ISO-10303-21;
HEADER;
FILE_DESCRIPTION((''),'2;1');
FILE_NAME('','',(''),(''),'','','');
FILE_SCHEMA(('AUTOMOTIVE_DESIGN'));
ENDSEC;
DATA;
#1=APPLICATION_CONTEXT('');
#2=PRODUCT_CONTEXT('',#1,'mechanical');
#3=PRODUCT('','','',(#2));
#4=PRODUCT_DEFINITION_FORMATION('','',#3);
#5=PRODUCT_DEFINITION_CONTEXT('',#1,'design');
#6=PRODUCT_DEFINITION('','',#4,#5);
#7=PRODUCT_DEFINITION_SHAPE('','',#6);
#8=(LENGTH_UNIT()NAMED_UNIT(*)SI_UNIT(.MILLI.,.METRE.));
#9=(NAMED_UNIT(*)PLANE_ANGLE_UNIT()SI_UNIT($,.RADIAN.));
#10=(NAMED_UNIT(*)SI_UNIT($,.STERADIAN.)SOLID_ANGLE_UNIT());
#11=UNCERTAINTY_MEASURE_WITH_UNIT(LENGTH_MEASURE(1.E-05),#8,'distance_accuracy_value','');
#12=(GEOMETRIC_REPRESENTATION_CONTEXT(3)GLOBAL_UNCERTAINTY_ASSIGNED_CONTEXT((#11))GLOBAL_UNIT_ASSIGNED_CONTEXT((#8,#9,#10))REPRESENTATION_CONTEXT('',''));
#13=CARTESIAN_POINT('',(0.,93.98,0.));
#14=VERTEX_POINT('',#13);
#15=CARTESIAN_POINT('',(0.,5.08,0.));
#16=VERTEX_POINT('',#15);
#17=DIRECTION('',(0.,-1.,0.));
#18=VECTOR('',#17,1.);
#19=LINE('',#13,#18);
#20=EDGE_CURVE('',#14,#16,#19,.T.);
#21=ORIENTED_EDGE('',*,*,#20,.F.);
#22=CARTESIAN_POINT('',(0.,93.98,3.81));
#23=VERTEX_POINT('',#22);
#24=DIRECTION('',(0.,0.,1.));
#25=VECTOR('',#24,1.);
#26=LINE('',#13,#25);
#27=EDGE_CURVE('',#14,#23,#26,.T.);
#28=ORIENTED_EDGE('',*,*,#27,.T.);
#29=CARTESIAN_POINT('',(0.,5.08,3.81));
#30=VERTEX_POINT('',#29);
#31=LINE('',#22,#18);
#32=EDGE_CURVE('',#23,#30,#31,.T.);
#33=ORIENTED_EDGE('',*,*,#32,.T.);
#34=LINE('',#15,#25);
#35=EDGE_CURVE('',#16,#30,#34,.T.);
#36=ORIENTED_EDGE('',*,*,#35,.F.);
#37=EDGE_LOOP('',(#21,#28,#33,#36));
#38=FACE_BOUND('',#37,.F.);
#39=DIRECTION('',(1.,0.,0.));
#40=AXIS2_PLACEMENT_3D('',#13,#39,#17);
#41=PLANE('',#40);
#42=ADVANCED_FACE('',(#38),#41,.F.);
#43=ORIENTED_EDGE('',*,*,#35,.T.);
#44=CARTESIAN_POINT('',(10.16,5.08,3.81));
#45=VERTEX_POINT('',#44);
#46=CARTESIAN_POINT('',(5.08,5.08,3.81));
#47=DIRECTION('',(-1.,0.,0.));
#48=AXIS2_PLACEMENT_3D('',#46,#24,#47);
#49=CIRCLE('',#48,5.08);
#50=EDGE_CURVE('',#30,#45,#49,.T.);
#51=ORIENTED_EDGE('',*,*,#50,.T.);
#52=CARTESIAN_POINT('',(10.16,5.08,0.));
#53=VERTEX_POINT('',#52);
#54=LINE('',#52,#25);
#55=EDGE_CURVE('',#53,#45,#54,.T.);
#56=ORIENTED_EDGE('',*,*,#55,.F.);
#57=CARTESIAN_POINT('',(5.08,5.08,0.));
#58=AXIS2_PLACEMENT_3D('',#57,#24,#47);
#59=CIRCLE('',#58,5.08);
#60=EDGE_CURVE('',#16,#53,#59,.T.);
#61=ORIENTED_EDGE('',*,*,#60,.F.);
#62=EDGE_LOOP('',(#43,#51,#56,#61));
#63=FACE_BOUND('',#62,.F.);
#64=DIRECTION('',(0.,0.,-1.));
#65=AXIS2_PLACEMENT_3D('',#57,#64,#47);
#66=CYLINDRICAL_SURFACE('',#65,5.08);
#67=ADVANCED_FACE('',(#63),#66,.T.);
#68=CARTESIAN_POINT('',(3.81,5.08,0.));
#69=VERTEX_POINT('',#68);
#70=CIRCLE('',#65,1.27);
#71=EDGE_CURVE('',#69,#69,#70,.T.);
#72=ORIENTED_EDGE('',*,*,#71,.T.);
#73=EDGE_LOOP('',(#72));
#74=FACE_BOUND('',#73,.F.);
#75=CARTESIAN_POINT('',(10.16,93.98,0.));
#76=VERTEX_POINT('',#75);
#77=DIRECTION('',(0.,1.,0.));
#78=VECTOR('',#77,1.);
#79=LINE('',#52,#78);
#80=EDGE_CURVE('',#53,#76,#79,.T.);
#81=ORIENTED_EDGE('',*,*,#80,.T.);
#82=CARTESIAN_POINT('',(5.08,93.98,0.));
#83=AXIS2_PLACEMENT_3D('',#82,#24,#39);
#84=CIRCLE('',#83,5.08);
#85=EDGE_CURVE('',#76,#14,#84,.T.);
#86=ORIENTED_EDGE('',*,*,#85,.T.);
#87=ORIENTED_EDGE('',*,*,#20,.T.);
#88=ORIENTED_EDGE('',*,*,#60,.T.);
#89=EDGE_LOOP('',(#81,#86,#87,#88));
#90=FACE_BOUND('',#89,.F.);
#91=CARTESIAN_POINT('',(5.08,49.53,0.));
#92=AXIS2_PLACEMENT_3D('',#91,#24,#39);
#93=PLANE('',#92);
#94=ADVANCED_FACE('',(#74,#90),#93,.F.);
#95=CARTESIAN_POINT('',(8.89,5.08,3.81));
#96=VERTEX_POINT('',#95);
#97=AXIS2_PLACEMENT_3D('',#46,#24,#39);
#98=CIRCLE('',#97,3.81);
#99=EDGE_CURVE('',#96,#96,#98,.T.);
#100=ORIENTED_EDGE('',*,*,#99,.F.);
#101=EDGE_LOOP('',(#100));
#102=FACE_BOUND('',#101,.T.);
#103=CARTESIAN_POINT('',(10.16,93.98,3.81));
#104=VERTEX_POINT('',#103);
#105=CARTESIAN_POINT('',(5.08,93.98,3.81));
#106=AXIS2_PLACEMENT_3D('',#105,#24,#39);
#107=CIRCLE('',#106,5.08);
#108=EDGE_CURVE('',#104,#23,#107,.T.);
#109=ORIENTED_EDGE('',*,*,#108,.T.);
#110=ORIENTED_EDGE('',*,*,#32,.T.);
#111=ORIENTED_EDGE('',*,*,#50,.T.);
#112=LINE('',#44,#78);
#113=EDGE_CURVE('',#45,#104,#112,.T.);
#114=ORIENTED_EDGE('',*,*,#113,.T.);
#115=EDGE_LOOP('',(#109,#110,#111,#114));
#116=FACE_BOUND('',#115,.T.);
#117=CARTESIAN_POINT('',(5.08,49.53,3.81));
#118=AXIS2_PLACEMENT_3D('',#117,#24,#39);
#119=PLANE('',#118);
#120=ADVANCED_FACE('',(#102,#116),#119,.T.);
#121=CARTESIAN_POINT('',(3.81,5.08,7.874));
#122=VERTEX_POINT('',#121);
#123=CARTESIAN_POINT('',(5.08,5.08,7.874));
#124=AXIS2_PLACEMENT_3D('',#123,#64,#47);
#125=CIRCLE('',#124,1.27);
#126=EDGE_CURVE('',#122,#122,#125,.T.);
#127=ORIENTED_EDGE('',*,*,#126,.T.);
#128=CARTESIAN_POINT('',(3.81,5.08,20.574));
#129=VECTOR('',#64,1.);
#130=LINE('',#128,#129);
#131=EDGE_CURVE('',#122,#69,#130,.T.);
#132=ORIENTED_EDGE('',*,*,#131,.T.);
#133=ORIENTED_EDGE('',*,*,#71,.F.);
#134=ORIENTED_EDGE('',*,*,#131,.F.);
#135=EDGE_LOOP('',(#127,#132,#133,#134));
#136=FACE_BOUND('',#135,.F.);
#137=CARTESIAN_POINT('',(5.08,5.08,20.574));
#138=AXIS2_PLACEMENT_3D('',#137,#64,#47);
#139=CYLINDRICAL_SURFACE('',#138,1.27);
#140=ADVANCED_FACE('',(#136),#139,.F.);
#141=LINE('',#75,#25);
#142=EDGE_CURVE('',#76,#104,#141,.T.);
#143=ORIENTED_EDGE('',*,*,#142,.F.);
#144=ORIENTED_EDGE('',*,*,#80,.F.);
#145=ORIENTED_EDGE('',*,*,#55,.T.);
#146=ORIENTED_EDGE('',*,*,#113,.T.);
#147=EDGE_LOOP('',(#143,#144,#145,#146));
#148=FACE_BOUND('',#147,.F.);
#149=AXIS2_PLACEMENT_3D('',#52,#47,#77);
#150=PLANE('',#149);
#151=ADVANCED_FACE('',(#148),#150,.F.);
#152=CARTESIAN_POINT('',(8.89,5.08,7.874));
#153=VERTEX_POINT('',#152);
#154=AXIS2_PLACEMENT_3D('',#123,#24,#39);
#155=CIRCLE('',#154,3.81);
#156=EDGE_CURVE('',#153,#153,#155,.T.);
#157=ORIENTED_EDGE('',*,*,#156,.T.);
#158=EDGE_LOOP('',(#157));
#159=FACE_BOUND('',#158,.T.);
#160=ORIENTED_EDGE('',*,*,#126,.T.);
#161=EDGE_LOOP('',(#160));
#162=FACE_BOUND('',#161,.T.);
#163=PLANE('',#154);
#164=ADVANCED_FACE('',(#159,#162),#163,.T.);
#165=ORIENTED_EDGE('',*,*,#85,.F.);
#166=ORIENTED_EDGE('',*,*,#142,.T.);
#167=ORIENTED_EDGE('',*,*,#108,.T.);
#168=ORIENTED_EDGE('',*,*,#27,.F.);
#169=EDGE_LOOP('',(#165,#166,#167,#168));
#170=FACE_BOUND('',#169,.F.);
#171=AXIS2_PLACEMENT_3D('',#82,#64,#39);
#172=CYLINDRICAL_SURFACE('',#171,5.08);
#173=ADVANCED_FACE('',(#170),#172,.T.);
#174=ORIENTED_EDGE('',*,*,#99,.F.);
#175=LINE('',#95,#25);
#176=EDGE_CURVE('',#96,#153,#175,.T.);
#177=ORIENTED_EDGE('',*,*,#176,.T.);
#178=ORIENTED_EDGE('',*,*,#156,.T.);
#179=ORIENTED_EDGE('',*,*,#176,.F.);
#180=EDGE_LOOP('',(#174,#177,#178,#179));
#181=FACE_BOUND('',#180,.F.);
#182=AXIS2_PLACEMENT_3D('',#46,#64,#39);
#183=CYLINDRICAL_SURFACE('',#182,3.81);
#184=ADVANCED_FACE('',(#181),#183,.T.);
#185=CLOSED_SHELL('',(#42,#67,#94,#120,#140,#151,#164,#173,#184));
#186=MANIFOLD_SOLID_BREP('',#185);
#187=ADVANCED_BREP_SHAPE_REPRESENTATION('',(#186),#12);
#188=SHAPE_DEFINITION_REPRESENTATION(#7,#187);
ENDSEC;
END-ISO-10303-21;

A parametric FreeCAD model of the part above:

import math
import FreeCAD as App
import Part
import Sketcher
from FreeCAD import Vector
Q = App.Units.Quantity

doc = App.newDocument("Part")
body = doc.addObject("PartDesign::Body", "Body")

sketch1 = body.newObject("Sketcher::SketchObject", "Sketch")
sketch1.AttachmentSupport = (doc.getObject("XY_Plane"), [""])
sketch1.MapMode = "FlatFace"
sketch1.addGeometry([
    Part.LineSegment(Vector(0, 94, 0), Vector(0, 5, 0)),
    Part.ArcOfCircle(Part.Circle(Vector(5, 5, 0), Vector(0, 0, 1), 5), math.radians(180), math.radians(360)),
    Part.LineSegment(Vector(10, 5, 0), Vector(10, 94, 0)),
    Part.ArcOfCircle(Part.Circle(Vector(5, 94, 0), Vector(0, 0, 1), 5), math.radians(0), math.radians(180)),
], False)
sketch1.addConstraint([
    Sketcher.Constraint("Tangent", 0, 2, 1, 1),
    Sketcher.Constraint("Tangent", 1, 2, 2, 1),
    Sketcher.Constraint("Tangent", 2, 2, 3, 1),
    Sketcher.Constraint("Tangent", 3, 2, 0, 1),
    Sketcher.Constraint("Vertical", 0),
    Sketcher.Constraint("Vertical", 2),
    Sketcher.Constraint("PointOnObject", 0, 2, -2),
    Sketcher.Constraint("Radius", 1, Q("0.2 in")),
    Sketcher.Constraint("DistanceY", 0, 2, 0, 1, Q("3.5 in")),
    Sketcher.Constraint("DistanceY", -1, 1, 1, 3, Q("0.2 in")),
])
pad1 = body.newObject("PartDesign::Pad", "Pad")
pad1.Profile = sketch1
pad1.Length = Q("0.15 in")

sketch2 = body.newObject("Sketcher::SketchObject", "Sketch001")
sketch2.AttachmentSupport = (doc.getObject("XY_Plane"), [""])
sketch2.MapMode = "FlatFace"
sketch2.AttachmentOffset = App.Placement(Vector(0, 0, 0.15 * 25.4), App.Rotation())
sketch2.addGeometry(Part.Circle(Vector(5.1, 5.1, 0), Vector(0, 0, 1), 3.8), False)
sketch2.addConstraint([
    Sketcher.Constraint("Diameter", 0, Q("0.3 in")),
    Sketcher.Constraint("DistanceX", -1, 1, 0, 3, Q("0.2 in")),
    Sketcher.Constraint("DistanceY", -1, 1, 0, 3, Q("0.2 in")),
])
pad2 = body.newObject("PartDesign::Pad", "Pad001")
pad2.Profile = sketch2
pad2.Length = Q("0.16 in")

sketch3 = body.newObject("Sketcher::SketchObject", "Sketch002")
sketch3.AttachmentSupport = (doc.getObject("XY_Plane"), [""])
sketch3.MapMode = "FlatFace"
sketch3.AttachmentOffset = App.Placement(Vector(0, 0, 0.31 * 25.4), App.Rotation())
sketch3.addGeometry(Part.Circle(Vector(5.1, 5.1, 0), Vector(0, 0, 1), 1.3), False)
sketch3.addConstraint([
    Sketcher.Constraint("Diameter", 0, Q("0.1 in")),
    Sketcher.Constraint("DistanceX", -1, 1, 0, 3, Q("0.2 in")),
    Sketcher.Constraint("DistanceY", -1, 1, 0, 3, Q("0.2 in")),
])
doc.recompute()
hole = body.newObject("PartDesign::Hole", "Hole")
hole.Profile = sketch3
hole.ThreadType = "None"
hole.Diameter = Q("0.1 in")
hole.DepthType = "Dimension"
hole.Depth = Q("0.5 in")
hole.DrillPoint = "Flat"

doc.recompute()
